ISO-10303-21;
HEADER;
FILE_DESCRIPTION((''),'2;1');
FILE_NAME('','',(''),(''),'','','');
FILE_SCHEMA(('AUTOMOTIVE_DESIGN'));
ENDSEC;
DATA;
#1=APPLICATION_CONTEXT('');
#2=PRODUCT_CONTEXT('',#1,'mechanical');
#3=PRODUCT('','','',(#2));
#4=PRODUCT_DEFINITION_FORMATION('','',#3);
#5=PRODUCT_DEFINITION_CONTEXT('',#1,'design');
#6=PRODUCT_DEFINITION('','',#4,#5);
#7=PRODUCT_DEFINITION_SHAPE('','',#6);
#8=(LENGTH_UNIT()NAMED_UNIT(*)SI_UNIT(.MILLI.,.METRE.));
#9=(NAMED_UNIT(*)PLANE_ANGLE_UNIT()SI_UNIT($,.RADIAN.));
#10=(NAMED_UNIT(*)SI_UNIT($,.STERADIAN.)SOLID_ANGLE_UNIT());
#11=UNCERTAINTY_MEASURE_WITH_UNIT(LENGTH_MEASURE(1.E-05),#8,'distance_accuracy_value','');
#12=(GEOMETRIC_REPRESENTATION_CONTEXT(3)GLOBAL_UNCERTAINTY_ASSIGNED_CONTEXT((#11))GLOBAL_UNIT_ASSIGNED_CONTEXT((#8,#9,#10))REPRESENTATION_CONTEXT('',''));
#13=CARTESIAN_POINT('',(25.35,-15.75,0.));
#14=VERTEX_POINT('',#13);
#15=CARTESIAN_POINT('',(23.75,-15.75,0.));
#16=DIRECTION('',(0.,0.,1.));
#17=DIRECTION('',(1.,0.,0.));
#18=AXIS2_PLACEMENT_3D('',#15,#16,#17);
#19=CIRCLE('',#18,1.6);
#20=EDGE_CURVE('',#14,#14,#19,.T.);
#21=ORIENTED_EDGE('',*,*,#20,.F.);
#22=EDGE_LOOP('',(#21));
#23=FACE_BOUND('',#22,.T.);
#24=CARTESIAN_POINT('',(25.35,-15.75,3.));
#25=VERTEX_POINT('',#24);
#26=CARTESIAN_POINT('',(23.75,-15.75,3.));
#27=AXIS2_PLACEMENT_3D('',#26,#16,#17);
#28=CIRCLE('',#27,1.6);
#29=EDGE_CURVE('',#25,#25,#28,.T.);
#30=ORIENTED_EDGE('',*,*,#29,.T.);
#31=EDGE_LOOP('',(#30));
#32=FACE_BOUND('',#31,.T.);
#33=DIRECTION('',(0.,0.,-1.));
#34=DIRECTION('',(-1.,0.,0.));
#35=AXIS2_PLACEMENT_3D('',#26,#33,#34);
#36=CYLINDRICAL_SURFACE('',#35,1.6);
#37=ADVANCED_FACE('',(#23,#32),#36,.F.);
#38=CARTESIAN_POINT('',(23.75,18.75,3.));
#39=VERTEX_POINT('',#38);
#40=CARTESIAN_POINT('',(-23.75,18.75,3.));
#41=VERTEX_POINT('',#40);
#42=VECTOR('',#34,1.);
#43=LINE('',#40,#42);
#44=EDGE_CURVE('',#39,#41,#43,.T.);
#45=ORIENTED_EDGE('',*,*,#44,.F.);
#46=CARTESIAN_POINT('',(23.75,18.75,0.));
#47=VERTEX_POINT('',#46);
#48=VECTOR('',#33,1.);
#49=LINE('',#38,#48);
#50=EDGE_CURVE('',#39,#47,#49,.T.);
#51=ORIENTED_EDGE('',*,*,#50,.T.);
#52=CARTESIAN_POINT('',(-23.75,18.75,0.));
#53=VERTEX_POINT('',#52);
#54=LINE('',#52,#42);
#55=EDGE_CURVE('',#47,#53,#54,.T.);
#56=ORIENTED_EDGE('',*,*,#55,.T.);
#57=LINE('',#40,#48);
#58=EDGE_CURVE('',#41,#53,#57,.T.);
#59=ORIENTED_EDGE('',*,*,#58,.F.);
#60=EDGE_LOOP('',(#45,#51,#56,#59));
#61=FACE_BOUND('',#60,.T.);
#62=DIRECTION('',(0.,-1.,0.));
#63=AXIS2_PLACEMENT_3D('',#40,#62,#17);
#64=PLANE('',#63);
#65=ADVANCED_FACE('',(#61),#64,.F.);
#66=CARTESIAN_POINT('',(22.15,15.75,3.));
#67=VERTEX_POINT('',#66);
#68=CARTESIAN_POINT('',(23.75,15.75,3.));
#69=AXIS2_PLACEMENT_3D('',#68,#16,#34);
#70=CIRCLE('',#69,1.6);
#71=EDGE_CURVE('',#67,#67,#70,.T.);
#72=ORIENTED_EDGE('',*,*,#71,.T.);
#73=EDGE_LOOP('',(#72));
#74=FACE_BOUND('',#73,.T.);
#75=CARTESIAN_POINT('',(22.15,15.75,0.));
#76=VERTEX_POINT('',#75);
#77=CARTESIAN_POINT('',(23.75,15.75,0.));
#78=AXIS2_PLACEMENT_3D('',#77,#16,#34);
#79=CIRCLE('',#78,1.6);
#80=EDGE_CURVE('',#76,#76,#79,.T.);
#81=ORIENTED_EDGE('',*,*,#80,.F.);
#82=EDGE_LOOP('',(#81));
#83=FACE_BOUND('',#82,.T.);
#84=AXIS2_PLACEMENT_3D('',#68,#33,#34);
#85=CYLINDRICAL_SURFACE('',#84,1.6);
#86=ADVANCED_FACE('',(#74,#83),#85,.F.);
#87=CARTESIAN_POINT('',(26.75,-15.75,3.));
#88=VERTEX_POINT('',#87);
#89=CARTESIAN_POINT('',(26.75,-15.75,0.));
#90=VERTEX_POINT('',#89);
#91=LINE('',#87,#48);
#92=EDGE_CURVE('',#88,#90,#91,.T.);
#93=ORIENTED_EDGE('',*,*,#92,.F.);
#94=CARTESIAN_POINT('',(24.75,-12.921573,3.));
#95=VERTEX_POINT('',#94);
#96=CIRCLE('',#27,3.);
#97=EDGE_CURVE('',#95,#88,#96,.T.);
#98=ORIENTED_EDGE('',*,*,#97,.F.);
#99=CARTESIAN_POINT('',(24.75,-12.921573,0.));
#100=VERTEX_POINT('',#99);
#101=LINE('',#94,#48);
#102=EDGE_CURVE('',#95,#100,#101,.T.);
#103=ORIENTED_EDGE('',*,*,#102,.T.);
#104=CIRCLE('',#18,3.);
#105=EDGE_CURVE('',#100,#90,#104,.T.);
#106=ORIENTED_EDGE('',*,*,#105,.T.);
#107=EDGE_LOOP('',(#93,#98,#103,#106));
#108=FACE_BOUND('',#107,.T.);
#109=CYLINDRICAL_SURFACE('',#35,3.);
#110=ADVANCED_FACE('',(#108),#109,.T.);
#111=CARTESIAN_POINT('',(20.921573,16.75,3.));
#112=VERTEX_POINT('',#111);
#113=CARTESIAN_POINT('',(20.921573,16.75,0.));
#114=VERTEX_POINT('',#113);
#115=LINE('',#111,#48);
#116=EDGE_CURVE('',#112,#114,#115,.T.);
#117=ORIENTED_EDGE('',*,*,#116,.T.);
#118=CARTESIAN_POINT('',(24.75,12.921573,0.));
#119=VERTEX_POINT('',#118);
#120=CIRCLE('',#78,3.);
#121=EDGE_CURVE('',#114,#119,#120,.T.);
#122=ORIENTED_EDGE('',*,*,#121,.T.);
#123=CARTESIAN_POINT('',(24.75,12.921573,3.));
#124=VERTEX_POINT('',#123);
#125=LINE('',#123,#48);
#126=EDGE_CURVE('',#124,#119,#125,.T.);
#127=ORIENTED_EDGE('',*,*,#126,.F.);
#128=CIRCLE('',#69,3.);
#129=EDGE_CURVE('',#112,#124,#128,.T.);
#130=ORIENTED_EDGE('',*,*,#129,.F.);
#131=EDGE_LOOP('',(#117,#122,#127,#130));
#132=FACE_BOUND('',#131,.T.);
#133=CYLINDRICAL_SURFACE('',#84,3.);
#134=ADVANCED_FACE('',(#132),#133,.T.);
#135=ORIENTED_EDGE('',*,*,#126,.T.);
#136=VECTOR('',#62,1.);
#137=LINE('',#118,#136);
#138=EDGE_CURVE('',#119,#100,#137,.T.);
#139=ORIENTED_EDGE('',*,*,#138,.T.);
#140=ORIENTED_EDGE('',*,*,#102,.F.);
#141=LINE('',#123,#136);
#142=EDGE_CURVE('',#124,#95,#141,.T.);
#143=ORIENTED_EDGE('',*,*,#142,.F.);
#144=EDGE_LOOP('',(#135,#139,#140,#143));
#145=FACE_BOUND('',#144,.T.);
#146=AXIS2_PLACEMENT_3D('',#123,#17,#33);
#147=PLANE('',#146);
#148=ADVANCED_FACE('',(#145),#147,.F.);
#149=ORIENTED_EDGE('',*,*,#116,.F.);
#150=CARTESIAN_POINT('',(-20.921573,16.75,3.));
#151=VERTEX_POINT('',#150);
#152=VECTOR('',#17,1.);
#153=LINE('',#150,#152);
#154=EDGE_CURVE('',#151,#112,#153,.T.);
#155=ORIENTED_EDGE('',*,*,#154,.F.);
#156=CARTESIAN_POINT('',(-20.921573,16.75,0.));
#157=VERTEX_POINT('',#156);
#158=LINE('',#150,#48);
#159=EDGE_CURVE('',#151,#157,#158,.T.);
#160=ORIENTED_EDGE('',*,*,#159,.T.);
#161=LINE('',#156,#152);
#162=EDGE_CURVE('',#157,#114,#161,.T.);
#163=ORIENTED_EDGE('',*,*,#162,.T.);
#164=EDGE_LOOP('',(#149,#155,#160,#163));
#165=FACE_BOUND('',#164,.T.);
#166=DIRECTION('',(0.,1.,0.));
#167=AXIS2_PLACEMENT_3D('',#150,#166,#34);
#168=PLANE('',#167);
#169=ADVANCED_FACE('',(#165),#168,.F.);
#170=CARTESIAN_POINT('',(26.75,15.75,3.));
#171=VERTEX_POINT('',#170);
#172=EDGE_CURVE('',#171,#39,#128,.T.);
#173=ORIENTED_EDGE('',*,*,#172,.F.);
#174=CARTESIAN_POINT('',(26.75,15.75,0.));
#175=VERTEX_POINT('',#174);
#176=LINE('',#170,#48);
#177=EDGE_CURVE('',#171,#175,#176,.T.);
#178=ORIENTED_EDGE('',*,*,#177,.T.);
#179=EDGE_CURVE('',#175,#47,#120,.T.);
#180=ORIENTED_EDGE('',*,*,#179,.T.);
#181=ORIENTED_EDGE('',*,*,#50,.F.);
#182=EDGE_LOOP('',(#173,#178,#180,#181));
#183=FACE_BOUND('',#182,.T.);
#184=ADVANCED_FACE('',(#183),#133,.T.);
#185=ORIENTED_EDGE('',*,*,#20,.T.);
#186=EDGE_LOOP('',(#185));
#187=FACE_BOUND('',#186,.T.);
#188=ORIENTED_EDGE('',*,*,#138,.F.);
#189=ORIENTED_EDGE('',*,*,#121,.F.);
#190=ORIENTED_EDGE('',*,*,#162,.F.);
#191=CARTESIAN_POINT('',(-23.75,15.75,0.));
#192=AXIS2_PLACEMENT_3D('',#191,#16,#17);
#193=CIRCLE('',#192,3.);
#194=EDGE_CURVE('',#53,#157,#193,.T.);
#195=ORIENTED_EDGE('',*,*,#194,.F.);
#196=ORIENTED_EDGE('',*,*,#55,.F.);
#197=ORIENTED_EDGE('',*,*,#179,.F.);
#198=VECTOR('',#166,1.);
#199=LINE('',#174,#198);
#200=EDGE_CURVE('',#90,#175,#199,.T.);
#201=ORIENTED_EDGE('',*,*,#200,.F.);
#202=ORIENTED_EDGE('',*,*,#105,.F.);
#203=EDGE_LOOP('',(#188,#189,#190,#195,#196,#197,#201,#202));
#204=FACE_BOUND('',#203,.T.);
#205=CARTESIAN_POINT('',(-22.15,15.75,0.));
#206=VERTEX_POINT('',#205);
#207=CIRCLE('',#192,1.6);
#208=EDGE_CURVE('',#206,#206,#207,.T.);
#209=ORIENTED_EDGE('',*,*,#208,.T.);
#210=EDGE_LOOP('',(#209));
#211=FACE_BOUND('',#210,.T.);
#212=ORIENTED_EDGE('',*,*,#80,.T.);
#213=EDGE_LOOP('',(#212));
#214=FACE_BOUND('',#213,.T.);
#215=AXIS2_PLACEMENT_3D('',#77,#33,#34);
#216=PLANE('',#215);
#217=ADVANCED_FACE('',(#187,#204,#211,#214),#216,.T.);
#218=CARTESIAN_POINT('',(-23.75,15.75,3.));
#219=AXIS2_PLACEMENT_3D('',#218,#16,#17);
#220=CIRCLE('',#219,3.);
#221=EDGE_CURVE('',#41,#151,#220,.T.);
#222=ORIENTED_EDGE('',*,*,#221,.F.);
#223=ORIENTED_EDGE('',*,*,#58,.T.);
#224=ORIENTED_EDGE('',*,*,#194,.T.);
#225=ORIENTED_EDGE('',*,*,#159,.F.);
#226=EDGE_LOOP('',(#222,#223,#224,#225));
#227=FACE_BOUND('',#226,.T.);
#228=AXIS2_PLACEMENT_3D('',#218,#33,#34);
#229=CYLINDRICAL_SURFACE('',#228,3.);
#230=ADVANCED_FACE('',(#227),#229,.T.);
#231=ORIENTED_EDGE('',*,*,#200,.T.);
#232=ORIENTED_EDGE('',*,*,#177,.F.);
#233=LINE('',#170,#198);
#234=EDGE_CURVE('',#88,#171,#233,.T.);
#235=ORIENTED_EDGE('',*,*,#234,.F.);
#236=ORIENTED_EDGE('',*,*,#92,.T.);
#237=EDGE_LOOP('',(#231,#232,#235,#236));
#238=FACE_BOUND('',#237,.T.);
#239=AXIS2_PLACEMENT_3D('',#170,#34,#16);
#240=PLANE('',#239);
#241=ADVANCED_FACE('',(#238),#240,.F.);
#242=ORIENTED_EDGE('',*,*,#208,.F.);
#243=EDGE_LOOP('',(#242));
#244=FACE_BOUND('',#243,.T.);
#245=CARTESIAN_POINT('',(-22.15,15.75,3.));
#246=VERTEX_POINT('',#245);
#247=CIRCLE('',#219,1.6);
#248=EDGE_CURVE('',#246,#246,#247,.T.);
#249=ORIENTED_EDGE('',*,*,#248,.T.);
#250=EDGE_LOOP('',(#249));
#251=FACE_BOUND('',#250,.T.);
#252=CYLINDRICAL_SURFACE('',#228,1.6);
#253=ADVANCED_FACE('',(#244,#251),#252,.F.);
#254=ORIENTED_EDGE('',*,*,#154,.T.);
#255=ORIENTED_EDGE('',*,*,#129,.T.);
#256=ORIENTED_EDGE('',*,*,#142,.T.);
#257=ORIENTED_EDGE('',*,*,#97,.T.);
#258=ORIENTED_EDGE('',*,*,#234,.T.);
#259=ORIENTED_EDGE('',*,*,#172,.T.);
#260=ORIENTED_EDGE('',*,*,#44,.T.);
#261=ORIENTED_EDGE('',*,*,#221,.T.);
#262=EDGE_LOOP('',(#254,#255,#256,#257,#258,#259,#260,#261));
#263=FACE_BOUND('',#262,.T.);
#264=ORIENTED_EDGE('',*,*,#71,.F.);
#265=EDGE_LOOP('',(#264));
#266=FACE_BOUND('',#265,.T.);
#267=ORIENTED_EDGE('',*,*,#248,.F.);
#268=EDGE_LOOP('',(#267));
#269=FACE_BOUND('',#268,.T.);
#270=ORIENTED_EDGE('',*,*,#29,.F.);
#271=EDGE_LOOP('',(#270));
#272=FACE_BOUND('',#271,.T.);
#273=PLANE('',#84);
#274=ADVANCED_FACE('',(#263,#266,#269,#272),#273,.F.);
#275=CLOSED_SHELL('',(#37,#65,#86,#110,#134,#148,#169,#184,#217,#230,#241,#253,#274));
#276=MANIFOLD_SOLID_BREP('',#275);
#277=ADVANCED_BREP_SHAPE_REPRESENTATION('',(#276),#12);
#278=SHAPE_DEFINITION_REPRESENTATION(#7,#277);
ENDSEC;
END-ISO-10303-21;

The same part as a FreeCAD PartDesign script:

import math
import FreeCAD as App
import Part
import Sketcher
from FreeCAD import Vector
Q = App.Units.Quantity

doc = App.newDocument("Part")
params = doc.addObject("Spreadsheet::Sheet", "Params")
for row, (alias, value) in enumerate([
    ("sketch1_radius", "3 mm"),
    ("sketch1_diameter", "3.2 mm"),
    ("sketch1_width", "47.5 mm"),
    ("sketch1_height", "31.5 mm"),
    ("sketch1_height2", "1 mm"),
    ("pad1_length", "3 mm"),
], start=1):
    params.set(f"A{row}", alias)
    params.set(f"B{row}", "=" + value)
    params.setAlias(f"B{row}", alias)

body = doc.addObject("PartDesign::Body", "Body")

# Sketch on XY plane
sketch1 = body.newObject("Sketcher::SketchObject", "Sketch")
sketch1.AttachmentSupport = (doc.getObject("XY_Plane"), [""])
sketch1.MapMode = "FlatFace"
sketch1.addGeometry([
    Part.LineSegment(Vector(26.8, -15.8, 0), Vector(26.8, 15.8, 0)),  # 0
    Part.ArcOfCircle(Part.Circle(Vector(23.8, 15.8, 0), Vector(0, 0, 1), 3), math.radians(0), math.radians(90)),  # 1
    Part.LineSegment(Vector(23.8, 18.8, 0), Vector(-23.8, 18.8, 0)),  # 2
    Part.ArcOfCircle(Part.Circle(Vector(-23.8, 15.8, 0), Vector(0, 0, 1), 3), math.radians(90), math.radians(379)),  # 3
    Part.LineSegment(Vector(-20.9, 16.8, 0), Vector(20.9, 16.8, 0)),  # 4
    Part.ArcOfCircle(Part.Circle(Vector(23.8, 15.8, 0), Vector(0, 0, 1), 3), math.radians(161), math.radians(289)),  # 5
    Part.LineSegment(Vector(24.8, 12.9, 0), Vector(24.8, -12.9, 0)),  # 6
    Part.ArcOfCircle(Part.Circle(Vector(23.8, -15.8, 0), Vector(0, 0, 1), 3), math.radians(71), math.radians(360)),  # 7
    Part.Circle(Vector(23.8, -15.8, 0), Vector(0, 0, 1), 1.6),  # 8
    Part.Circle(Vector(23.8, 15.8, 0), Vector(0, 0, 1), 1.6),  # 9
    Part.Circle(Vector(-23.8, 15.8, 0), Vector(0, 0, 1), 1.6),  # 10
], False)
sketch1.addConstraint([
    Sketcher.Constraint("Tangent", 0, 2, 1, 1),
    Sketcher.Constraint("Tangent", 1, 2, 2, 1),
    Sketcher.Constraint("Tangent", 2, 2, 3, 1),
    Sketcher.Constraint("Coincident", 3, 2, 4, 1),
    Sketcher.Constraint("Coincident", 4, 2, 5, 1),
    Sketcher.Constraint("Coincident", 5, 2, 6, 1),
    Sketcher.Constraint("Coincident", 6, 2, 7, 1),
    Sketcher.Constraint("Tangent", 7, 2, 0, 1),
    Sketcher.Constraint("Vertical", 0),
    Sketcher.Constraint("Horizontal", 2),
    Sketcher.Constraint("Horizontal", 4),
    Sketcher.Constraint("Vertical", 6),
    Sketcher.Constraint("Coincident", 5, 3, 1, 3),
    Sketcher.Constraint("Coincident", 8, 3, 7, 3),
    Sketcher.Constraint("Coincident", 9, 3, 1, 3),
    Sketcher.Constraint("Coincident", 10, 3, 3, 3),
    Sketcher.Constraint("Equal", 1, 3),
    Sketcher.Constraint("Equal", 3, 5),
    Sketcher.Constraint("Equal", 5, 7),
    Sketcher.Constraint("Equal", 8, 9),
    Sketcher.Constraint("Equal", 9, 10),
    Sketcher.Constraint("Symmetric", 3, 3, 7, 3, -1, 1),
    Sketcher.Constraint("Radius", 1, Q("3 mm")),
    Sketcher.Constraint("Diameter", 8, Q("3.2 mm")),
    Sketcher.Constraint("DistanceX", 2, 2, 2, 1, Q("47.5 mm")),
    Sketcher.Constraint("DistanceY", 0, 1, 0, 2, Q("31.5 mm")),
    Sketcher.Constraint("DistanceY", 3, 3, 3, 2, Q("1 mm")),
    Sketcher.Constraint("DistanceX", 5, 3, 5, 2, Q("1 mm")),
])
sketch1.setExpression("Constraints[22]", "Params.sketch1_radius")
sketch1.setExpression("Constraints[23]", "Params.sketch1_diameter")
sketch1.setExpression("Constraints[24]", "Params.sketch1_width")
sketch1.setExpression("Constraints[25]", "Params.sketch1_height")
sketch1.setExpression("Constraints[26]", "Params.sketch1_height2")
pad1 = body.newObject("PartDesign::Pad", "Pad")
pad1.Profile = sketch1
pad1.setExpression("Length", "Params.pad1_length")

doc.recompute()
